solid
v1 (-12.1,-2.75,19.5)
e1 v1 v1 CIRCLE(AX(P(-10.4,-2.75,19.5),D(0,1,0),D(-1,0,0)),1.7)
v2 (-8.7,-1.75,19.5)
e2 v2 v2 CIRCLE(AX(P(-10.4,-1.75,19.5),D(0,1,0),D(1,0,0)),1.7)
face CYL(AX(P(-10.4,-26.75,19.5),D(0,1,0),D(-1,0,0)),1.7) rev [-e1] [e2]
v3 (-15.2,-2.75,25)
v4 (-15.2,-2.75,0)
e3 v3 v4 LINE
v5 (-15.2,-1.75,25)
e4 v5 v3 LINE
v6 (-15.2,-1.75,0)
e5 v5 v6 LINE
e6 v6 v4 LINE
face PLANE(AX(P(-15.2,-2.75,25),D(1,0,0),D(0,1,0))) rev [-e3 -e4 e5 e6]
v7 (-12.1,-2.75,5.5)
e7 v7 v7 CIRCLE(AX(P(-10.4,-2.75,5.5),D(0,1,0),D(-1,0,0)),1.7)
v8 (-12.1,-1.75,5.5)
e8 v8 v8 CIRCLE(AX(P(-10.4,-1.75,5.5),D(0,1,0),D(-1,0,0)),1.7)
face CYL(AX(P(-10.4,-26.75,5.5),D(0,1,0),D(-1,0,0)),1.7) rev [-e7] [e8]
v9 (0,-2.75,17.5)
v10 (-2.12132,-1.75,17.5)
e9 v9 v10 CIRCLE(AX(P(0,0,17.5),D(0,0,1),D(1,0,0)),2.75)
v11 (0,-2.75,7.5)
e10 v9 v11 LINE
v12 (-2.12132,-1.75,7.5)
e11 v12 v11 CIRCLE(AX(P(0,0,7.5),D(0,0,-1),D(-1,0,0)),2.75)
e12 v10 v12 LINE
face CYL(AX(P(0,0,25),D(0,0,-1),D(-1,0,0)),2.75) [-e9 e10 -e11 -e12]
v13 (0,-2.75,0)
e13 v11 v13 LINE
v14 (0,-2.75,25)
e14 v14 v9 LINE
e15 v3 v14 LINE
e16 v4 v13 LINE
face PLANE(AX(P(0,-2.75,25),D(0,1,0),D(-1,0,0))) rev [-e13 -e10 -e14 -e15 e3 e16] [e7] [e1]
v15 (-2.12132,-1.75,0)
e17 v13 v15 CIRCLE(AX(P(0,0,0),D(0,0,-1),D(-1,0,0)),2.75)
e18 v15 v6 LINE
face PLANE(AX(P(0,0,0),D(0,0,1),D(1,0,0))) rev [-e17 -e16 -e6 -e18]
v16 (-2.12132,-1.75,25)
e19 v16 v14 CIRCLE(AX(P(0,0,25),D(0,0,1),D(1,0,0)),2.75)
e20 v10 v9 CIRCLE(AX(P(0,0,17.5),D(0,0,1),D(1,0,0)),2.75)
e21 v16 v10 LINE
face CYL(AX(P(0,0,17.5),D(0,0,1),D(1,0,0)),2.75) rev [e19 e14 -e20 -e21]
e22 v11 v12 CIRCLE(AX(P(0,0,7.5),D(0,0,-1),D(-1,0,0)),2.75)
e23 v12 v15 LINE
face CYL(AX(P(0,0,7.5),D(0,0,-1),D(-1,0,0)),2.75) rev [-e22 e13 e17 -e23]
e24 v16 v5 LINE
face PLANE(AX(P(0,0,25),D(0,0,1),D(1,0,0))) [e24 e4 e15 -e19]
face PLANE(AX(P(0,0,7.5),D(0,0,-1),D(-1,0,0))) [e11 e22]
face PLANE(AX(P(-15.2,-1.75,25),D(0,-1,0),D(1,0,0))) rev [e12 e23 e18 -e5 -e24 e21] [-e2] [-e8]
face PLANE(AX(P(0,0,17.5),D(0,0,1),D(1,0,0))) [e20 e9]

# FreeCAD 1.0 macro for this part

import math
import FreeCAD as App
import Part
import Sketcher
from FreeCAD import Vector
Q = App.Units.Quantity

doc = App.newDocument("Part")
body = doc.addObject("PartDesign::Body", "Body")

sketch1 = body.newObject("Sketcher::SketchObject", "Sketch")
sketch1.AttachmentSupport = (doc.getObject("XY_Plane"), [""])
sketch1.MapMode = "FlatFace"
sketch1.addGeometry(Part.LineSegment(Vector(-15.2, -2.75, 0), Vector(0, -2.75, 0)), False)
sketch1.addGeometry(Part.ArcOfCircle(Part.Circle(Vector(0, 0, 0), Vector(0, 0, 1), 2.75), math.radians(-90), math.radians(219.521196)), False)
sketch1.addGeometry(Part.LineSegment(Vector(-2.12132, -1.75, 0), Vector(-15.2, -1.75, 0)), False)
sketch1.addGeometry(Part.LineSegment(Vector(-15.2, -1.75, 0), Vector(-15.2, -2.75, 0)), False)
sketch1.addConstraint(Sketcher.Constraint("Tangent", 0, 2, 1, 1))
sketch1.addConstraint(Sketcher.Constraint("Coincident", 1, 2, 2, 1))
sketch1.addConstraint(Sketcher.Constraint("Coincident", 2, 2, 3, 1))
sketch1.addConstraint(Sketcher.Constraint("Coincident", 3, 2, 0, 1))
sketch1.addConstraint(Sketcher.Constraint("Horizontal", 0))
sketch1.addConstraint(Sketcher.Constraint("Horizontal", 2))
sketch1.addConstraint(Sketcher.Constraint("Vertical", 3))
sketch1.addConstraint(Sketcher.Constraint("Coincident", 1, 3, -1, 1))
sketch1.addConstraint(Sketcher.Constraint("DistanceY", 3, 2, 3, 1, Q("1 mm")))
sketch1.addConstraint(Sketcher.Constraint("Radius", 1, Q("2.75 mm")))
sketch1.addConstraint(Sketcher.Constraint("DistanceX", 0, 1, 0, 2, Q("15.2 mm")))
pad1 = body.newObject("PartDesign::Pad", "Pad")
pad1.Profile = sketch1
pad1.Length = 25

sketch2 = body.newObject("Sketcher::SketchObject", "Sketch001")
sketch2.AttachmentSupport = (doc.getObject("XZ_Plane"), [""])
sketch2.MapMode = "FlatFace"
sketch2.AttachmentOffset = App.Placement(Vector(0, 0, 1.75), App.Rotation())
sketch2.addGeometry(Part.Circle(Vector(-10.4, 5.5, 0), Vector(0, 0, 1), 1.7), False)
sketch2.addGeometry(Part.Circle(Vector(-10.4, 19.5, 0), Vector(0, 0, 1), 1.7), False)
sketch2.addConstraint(Sketcher.Constraint("Equal", 0, 1))
sketch2.addConstraint(Sketcher.Constraint("Vertical", 0, 3, 1, 3))
sketch2.addConstraint(Sketcher.Constraint("Diameter", 0, Q("3.4 mm")))
sketch2.addConstraint(Sketcher.Constraint("DistanceY", 0, 3, 1, 3, Q("14 mm")))
sketch2.addConstraint(Sketcher.Constraint("DistanceX", 0, 3, -1, 1, Q("10.4 mm")))
sketch2.addConstraint(Sketcher.Constraint("DistanceY", -1, 1, 0, 3, Q("5.5 mm")))
pocket1 = body.newObject("PartDesign::Pocket", "Pocket")
pocket1.Profile = sketch2
pocket1.Length = 25
pocket1.Reversed = True

sketch3 = body.newObject("Sketcher::SketchObject", "Sketch002")
sketch3.AttachmentSupport = (doc.getObject("XY_Plane"), [""])
sketch3.MapMode = "FlatFace"
sketch3.addGeometry(Part.Circle(Vector(0, 0, 0), Vector(0, 0, 1), 2.75), False)
sketch3.addConstraint(Sketcher.Constraint("Coincident", 0, 3, -1, 1))
sketch3.addConstraint(Sketcher.Constraint("Diameter", 0, Q("5.5 mm")))
pocket2 = body.newObject("PartDesign::Pocket", "Pocket001")
pocket2.Profile = sketch3
pocket2.Length = 7.5
pocket2.Reversed = True

sketch4 = body.newObject("Sketcher::SketchObject", "Sketch003")
sketch4.AttachmentSupport = (doc.getObject("XY_Plane"), [""])
sketch4.MapMode = "FlatFace"
sketch4.AttachmentOffset = App.Placement(Vector(0, 0, 25), App.Rotation())
sketch4.addGeometry(Part.Circle(Vector(0, 0, 0), Vector(0, 0, 1), 2.75), False)
sketch4.addConstraint(Sketcher.Constraint("Coincident", 0, 3, -1, 1))
sketch4.addConstraint(Sketcher.Constraint("Diameter", 0, Q("5.5 mm")))
pocket3 = body.newObject("PartDesign::Pocket", "Pocket002")
pocket3.Profile = sketch4
pocket3.Length = 7.5

doc.recompute()
